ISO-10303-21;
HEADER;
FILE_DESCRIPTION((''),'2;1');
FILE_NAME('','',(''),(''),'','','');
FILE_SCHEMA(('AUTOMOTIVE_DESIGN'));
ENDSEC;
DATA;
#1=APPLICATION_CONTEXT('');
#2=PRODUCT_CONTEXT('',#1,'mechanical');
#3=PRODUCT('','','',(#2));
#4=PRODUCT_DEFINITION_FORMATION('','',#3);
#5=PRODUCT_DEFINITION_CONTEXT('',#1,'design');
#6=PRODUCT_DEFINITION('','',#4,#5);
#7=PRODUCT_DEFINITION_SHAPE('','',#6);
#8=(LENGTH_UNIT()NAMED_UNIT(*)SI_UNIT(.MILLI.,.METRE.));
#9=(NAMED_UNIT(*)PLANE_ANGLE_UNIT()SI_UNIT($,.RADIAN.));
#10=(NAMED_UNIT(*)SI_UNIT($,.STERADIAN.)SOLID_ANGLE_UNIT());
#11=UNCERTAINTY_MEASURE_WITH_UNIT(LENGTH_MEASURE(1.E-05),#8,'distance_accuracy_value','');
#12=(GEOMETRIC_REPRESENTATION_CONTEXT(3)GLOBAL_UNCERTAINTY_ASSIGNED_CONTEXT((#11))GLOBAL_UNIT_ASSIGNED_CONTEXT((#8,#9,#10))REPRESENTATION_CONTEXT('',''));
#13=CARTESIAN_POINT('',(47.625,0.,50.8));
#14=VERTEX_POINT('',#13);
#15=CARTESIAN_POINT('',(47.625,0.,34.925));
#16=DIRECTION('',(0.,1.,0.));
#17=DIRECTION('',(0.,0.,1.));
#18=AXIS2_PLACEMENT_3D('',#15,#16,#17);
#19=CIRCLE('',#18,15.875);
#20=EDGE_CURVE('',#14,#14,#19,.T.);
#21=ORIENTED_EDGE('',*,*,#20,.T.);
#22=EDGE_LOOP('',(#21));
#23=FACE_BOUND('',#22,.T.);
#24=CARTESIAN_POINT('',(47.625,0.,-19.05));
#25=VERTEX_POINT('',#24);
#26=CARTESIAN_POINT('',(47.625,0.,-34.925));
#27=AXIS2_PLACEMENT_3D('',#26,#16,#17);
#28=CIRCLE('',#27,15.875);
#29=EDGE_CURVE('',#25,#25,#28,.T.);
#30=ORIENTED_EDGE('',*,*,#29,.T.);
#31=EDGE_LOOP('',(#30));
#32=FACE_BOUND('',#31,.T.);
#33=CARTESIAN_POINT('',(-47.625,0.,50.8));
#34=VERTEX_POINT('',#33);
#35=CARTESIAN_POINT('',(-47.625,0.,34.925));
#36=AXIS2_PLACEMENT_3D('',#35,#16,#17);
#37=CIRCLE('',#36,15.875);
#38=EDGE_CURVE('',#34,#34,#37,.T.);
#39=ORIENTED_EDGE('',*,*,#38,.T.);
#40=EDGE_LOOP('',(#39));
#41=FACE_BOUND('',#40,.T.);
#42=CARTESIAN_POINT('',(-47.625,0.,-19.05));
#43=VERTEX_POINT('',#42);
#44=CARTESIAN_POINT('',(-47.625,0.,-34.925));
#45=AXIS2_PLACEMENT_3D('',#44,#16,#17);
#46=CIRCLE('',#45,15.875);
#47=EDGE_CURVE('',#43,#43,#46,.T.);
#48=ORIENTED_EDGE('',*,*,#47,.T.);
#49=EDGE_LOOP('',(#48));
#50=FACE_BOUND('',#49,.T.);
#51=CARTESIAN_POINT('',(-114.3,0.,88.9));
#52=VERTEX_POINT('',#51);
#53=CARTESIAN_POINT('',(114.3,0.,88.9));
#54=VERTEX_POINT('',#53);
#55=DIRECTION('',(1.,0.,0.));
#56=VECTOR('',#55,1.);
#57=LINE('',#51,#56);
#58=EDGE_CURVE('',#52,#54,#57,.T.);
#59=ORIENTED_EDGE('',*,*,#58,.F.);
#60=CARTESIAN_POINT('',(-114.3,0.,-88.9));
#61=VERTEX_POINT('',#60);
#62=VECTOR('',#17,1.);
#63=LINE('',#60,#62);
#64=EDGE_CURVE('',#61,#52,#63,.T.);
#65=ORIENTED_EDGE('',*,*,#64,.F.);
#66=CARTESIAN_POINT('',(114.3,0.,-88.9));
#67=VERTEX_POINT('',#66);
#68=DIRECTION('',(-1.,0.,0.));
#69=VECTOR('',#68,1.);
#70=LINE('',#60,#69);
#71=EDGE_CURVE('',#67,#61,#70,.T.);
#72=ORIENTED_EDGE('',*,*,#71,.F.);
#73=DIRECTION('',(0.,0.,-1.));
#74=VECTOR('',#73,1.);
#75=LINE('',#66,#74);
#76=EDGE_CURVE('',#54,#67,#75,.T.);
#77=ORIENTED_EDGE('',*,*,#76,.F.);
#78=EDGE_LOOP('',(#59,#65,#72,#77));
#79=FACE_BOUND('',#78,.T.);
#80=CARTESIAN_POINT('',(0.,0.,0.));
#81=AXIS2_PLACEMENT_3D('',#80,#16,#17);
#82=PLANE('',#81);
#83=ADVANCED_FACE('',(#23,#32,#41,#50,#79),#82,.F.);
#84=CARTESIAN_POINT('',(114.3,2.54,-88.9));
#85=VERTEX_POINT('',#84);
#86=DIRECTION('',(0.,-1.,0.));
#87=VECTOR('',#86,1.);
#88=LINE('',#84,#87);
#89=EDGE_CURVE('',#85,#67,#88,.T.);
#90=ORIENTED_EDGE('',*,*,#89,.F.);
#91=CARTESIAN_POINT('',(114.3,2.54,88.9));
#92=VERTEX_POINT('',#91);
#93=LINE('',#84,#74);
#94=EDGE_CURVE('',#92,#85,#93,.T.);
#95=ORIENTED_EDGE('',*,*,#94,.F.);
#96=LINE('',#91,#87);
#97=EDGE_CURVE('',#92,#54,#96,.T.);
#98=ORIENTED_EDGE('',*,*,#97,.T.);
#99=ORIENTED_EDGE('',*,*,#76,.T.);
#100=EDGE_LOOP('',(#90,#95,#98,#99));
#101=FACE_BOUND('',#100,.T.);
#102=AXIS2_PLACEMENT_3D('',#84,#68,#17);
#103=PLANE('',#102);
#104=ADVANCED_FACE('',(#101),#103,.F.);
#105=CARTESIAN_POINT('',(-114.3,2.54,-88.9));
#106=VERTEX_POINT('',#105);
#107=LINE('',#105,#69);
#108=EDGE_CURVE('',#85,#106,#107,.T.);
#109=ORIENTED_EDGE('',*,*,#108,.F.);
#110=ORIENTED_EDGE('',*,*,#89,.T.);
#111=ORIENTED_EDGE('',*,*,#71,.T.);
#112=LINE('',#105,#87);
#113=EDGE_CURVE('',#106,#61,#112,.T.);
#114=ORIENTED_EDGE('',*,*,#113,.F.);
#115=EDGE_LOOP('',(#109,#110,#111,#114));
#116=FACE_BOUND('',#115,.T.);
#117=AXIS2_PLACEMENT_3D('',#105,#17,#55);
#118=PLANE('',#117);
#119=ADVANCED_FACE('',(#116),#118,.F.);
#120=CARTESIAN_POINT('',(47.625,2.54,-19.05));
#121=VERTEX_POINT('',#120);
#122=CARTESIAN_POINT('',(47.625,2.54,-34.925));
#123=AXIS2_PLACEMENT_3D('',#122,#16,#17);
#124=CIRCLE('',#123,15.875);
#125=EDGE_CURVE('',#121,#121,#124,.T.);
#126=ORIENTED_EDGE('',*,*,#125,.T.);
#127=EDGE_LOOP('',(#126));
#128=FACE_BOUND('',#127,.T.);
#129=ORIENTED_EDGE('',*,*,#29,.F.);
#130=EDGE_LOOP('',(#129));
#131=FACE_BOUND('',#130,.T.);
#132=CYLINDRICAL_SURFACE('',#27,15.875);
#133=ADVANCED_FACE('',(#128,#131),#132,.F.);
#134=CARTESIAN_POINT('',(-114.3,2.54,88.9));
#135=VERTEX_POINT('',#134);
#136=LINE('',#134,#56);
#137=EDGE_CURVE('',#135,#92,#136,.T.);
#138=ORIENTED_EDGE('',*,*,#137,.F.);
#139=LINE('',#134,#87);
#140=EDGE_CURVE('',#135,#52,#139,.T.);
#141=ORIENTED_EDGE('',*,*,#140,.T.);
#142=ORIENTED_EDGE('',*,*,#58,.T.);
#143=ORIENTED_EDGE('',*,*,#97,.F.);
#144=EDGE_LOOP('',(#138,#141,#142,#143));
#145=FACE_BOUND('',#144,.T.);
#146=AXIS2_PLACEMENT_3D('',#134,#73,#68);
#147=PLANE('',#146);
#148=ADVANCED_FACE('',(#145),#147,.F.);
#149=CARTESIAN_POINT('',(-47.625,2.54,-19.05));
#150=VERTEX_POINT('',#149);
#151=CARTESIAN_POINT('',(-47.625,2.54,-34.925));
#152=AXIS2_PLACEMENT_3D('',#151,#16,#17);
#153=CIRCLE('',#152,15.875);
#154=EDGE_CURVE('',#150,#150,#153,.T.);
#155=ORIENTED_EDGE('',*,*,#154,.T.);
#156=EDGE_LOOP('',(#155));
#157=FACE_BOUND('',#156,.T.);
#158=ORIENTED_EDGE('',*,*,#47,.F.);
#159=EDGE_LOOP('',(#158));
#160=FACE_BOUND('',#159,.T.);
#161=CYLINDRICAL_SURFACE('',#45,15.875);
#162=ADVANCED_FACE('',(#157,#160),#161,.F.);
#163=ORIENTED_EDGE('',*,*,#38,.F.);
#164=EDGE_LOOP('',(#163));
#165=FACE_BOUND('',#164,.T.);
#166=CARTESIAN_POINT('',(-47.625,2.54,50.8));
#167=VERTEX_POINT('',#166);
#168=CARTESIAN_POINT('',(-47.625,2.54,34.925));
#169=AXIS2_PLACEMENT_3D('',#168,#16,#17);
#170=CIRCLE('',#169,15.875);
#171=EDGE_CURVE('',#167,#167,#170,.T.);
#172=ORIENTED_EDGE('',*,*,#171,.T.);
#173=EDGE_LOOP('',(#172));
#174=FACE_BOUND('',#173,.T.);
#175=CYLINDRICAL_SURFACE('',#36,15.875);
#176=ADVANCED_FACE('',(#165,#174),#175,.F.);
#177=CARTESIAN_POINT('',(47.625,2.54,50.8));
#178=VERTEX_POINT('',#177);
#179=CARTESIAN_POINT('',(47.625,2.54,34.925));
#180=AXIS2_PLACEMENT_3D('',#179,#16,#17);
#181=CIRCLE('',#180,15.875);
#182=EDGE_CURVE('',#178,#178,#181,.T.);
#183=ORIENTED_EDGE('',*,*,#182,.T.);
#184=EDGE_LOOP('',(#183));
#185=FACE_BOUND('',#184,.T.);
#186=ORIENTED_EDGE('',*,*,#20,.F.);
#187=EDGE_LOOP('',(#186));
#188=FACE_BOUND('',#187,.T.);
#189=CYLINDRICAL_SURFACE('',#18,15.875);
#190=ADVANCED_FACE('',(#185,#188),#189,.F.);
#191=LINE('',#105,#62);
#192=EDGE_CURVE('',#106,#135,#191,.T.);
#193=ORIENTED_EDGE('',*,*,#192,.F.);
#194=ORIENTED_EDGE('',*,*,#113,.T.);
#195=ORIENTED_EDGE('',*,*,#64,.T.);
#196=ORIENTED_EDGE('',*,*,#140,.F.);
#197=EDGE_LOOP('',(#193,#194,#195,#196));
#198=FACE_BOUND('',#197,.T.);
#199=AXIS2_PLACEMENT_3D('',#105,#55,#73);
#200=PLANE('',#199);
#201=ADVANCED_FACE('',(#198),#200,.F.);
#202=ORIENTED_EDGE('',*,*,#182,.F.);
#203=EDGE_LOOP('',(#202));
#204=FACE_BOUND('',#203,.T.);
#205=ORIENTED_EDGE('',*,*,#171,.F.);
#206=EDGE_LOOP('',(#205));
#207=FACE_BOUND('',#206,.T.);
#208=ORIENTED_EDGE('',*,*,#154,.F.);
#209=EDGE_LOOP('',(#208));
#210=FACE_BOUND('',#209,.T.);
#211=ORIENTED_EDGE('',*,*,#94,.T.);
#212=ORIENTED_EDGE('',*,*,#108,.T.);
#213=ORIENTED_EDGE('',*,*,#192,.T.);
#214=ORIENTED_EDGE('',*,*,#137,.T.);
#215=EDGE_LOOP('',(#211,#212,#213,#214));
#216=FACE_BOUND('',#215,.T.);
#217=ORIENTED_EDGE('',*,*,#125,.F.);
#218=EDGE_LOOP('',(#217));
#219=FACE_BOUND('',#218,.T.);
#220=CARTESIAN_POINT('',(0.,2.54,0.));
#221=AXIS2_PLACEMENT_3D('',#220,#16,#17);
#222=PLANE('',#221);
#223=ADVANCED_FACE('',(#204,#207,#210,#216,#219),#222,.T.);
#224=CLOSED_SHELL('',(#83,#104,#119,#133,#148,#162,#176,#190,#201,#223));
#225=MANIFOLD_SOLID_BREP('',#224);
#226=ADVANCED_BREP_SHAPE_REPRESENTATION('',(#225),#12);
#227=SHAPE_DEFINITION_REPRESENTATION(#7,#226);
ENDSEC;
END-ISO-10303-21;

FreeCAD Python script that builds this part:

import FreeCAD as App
import Part
import Sketcher
Q = App.Units.Quantity

doc = App.newDocument("Part")
body = doc.addObject("PartDesign::Body", "Body")

sketch1 = body.newObject("Sketcher::SketchObject", "Sketch")
sketch1.AttachmentSupport = (doc.getObject("XZ_Plane"), [""])
sketch1.MapMode = "FlatFace"
sketch1.addGeometry(Part.LineSegment(App.Vector(-114.3, -88.9, 0), App.Vector(-114.3, 88.9, 0)), False)
sketch1.addGeometry(Part.LineSegment(App.Vector(-114.3, 88.9, 0), App.Vector(114.3, 88.9, 0)), False)
sketch1.addGeometry(Part.LineSegment(App.Vector(114.3, 88.9, 0), App.Vector(114.3, -88.9, 0)), False)
sketch1.addGeometry(Part.LineSegment(App.Vector(114.3, -88.9, 0), App.Vector(-114.3, -88.9, 0)), False)
sketch1.addConstraint(Sketcher.Constraint("Coincident", 0, 2, 1, 1))
sketch1.addConstraint(Sketcher.Constraint("Coincident", 1, 2, 2, 1))
sketch1.addConstraint(Sketcher.Constraint("Coincident", 2, 2, 3, 1))
sketch1.addConstraint(Sketcher.Constraint("Coincident", 3, 2, 0, 1))
sketch1.addConstraint(Sketcher.Constraint("Vertical", 0))
sketch1.addConstraint(Sketcher.Constraint("Horizontal", 1))
sketch1.addConstraint(Sketcher.Constraint("Vertical", 2))
sketch1.addConstraint(Sketcher.Constraint("Horizontal", 3))
sketch1.addConstraint(Sketcher.Constraint("Symmetric", 0, 2, 2, 2, -1, 1))
sketch1.addConstraint(Sketcher.Constraint("DistanceX", 1, 1, 1, 2, Q("9 in")))
sketch1.addConstraint(Sketcher.Constraint("DistanceY", 0, 1, 0, 2, Q("7 in")))
pad1 = body.newObject("PartDesign::Pad", "Pad")
pad1.Profile = sketch1
pad1.Length = Q("0.1 in")
pad1.Reversed = True

sketch2 = body.newObject("Sketcher::SketchObject", "Sketch001")
sketch2.AttachmentSupport = (doc.getObject("XZ_Plane"), [""])
sketch2.MapMode = "FlatFace"
sketch2.AttachmentOffset = App.Placement(App.Vector(0, 0, -0.1 * 25.4), App.Rotation())
sketch2.addGeometry(Part.Circle(App.Vector(-47.625, -34.925, 0), App.Vector(0, 0, 1), 15.875), False)
sketch2.addGeometry(Part.Circle(App.Vector(47.625, -34.925, 0), App.Vector(0, 0, 1), 15.875), False)
sketch2.addGeometry(Part.Circle(App.Vector(47.625, 34.925, 0), App.Vector(0, 0, 1), 15.875), False)
sketch2.addGeometry(Part.Circle(App.Vector(-47.625, 34.925, 0), App.Vector(0, 0, 1), 15.875), False)
sketch2.addConstraint(Sketcher.Constraint("Equal", 0, 1))
sketch2.addConstraint(Sketcher.Constraint("Equal", 1, 2))
sketch2.addConstraint(Sketcher.Constraint("Equal", 2, 3))
sketch2.addConstraint(Sketcher.Constraint("Symmetric", 0, 3, 2, 3, -1, 1))
sketch2.addConstraint(Sketcher.Constraint("Symmetric", 1, 3, 3, 3, -1, 1))
sketch2.addConstraint(Sketcher.Constraint("Symmetric", 0, 3, 1, 3, -2))
sketch2.addConstraint(Sketcher.Constraint("Diameter", 0, Q("1.25 in")))
sketch2.addConstraint(Sketcher.Constraint("DistanceX", 0, 3, 1, 3, Q("3.75 in")))
sketch2.addConstraint(Sketcher.Constraint("DistanceY", 1, 3, 2, 3, Q("2.75 in")))
pocket1 = body.newObject("PartDesign::Pocket", "Pocket")
pocket1.Profile = sketch2
pocket1.Type = "ThroughAll"
pocket1.Reversed = True

doc.recompute()
